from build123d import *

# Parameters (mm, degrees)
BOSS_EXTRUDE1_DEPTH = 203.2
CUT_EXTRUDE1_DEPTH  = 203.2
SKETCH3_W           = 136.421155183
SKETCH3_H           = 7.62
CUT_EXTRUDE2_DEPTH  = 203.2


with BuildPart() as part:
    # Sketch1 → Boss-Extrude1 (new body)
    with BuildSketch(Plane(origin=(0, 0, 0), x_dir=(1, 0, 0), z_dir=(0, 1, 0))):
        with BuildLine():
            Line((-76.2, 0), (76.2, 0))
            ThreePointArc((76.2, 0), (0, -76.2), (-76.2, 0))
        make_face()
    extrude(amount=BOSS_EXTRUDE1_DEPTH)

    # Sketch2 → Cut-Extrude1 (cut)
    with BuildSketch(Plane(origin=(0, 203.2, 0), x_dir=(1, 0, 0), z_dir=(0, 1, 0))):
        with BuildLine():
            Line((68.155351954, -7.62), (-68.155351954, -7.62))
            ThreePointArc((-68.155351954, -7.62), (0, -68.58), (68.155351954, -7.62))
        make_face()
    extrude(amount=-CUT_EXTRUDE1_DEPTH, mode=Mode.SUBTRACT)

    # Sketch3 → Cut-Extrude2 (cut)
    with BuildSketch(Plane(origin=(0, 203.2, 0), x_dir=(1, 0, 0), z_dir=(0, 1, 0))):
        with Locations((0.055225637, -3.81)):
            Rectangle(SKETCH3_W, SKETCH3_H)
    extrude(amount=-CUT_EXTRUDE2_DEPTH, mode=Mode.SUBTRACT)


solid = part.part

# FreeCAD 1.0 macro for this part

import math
import FreeCAD as App
import Part
import Sketcher
from FreeCAD import Vector
Q = App.Units.Quantity


def add_polygon(sketch, points):
    """Adds a closed chain of lines whose ends are joined by coincident constraints."""
    first, n = sketch.GeometryCount, len(points)
    for a, b in zip(points, points[1:] + points[:1]):
        sketch.addGeometry(Part.LineSegment(App.Vector(*a, 0), App.Vector(*b, 0)), False)
    for i in range(n):
        sketch.addConstraint(Sketcher.Constraint("Coincident", first + i, 2, first + (i + 1) % n, 1))

doc = App.newDocument("Part")
body = doc.addObject("PartDesign::Body", "Body")

# Sketch on XZ plane
sketch1 = doc.addObject("Sketcher::SketchObject", "Sketch")
body.addObject(sketch1)
sketch1.AttachmentSupport = (doc.XZ_Plane, [""])
sketch1.MapMode = "FlatFace"
sketch1.addGeometry([
    Part.LineSegment(Vector(76.2, 0, 0), Vector(-76.2, 0, 0)),
    Part.ArcOfCircle(Part.Circle(Vector(0, 0, 0), Vector(0, 0, 1), 76.2), math.radians(0), math.radians(180)),
], False)
sketch1.addConstraint([
    Sketcher.Constraint("Coincident", 0, 1, 1, 1),
    Sketcher.Constraint("Coincident", 1, 2, 0, 2),
    Sketcher.Constraint("Horizontal", 0),
    Sketcher.Constraint("Coincident", 1, 3, -1, 1),
    Sketcher.Constraint("PointOnObject", 0, 1, -1),
    Sketcher.Constraint("Radius", 1, Q("3 in")),
])
pad1 = doc.addObject("PartDesign::Pad", "Pad")
body.addObject(pad1)
pad1.Profile = sketch1
pad1.Length = Q("8 in")
pad1.Reversed = True

# Sketch on XZ plane
sketch2 = doc.addObject("Sketcher::SketchObject", "Sketch001")
body.addObject(sketch2)
sketch2.AttachmentSupport = (doc.XZ_Plane, [""])
sketch2.MapMode = "FlatFace"
sketch2.AttachmentOffset = App.Placement(Vector(0, 0, -8 * 25.4), App.Rotation())
sketch2.addGeometry([
    Part.LineSegment(Vector(68.155352, 7.62, 0), Vector(-68.155352, 7.62, 0)),
    Part.ArcOfCircle(Part.Circle(Vector(0, 0, 0), Vector(0, 0, 1), 68.58), math.radians(6.37937), math.radians(173.62063)),
], False)
sketch2.addConstraint([
    Sketcher.Constraint("Coincident", 0, 1, 1, 1),
    Sketcher.Constraint("Coincident", 1, 2, 0, 2),
    Sketcher.Constraint("Horizontal", 0),
    Sketcher.Constraint("Coincident", 1, 3, -1, 1),
    Sketcher.Constraint("Radius", 1, Q("2.7 in")),
    Sketcher.Constraint("DistanceY", -1, 1, 0, 1, Q("0.3 in")),
])
pocket1 = doc.addObject("PartDesign::Pocket", "Pocket")
body.addObject(pocket1)
pocket1.Profile = sketch2
pocket1.Length = Q("8 in")
pocket1.Reversed = True

# Sketch on XZ plane
sketch3 = doc.addObject("Sketcher::SketchObject", "Sketch002")
body.addObject(sketch3)
sketch3.AttachmentSupport = (doc.XZ_Plane, [""])
sketch3.MapMode = "FlatFace"
sketch3.AttachmentOffset = App.Placement(Vector(0, 0, -8 * 25.4), App.Rotation())
add_polygon(sketch3, [(-68.155352, 0), (-68.155352, 7.62), (68.265803, 7.62), (68.265803, 0)])  # lines 0-3
sketch3.addConstraint([
    Sketcher.Constraint("Vertical", 0),
    Sketcher.Constraint("Horizontal", 1),
    Sketcher.Constraint("Vertical", 2),
    Sketcher.Constraint("Horizontal", 3),
    Sketcher.Constraint("PointOnObject", 2, 2, -1),
    Sketcher.Constraint("DistanceY", 0, 1, 0, 2, Q("0.3 in")),
    Sketcher.Constraint("DistanceX", 1, 1, 1, 2, 136.421155),
    Sketcher.Constraint("DistanceX", 0, 2, -1, 1, 68.155352),
])
pocket2 = doc.addObject("PartDesign::Pocket", "Pocket001")
body.addObject(pocket2)
pocket2.Profile = sketch3
pocket2.Length = Q("8 in")
pocket2.Reversed = True

doc.recompute()
